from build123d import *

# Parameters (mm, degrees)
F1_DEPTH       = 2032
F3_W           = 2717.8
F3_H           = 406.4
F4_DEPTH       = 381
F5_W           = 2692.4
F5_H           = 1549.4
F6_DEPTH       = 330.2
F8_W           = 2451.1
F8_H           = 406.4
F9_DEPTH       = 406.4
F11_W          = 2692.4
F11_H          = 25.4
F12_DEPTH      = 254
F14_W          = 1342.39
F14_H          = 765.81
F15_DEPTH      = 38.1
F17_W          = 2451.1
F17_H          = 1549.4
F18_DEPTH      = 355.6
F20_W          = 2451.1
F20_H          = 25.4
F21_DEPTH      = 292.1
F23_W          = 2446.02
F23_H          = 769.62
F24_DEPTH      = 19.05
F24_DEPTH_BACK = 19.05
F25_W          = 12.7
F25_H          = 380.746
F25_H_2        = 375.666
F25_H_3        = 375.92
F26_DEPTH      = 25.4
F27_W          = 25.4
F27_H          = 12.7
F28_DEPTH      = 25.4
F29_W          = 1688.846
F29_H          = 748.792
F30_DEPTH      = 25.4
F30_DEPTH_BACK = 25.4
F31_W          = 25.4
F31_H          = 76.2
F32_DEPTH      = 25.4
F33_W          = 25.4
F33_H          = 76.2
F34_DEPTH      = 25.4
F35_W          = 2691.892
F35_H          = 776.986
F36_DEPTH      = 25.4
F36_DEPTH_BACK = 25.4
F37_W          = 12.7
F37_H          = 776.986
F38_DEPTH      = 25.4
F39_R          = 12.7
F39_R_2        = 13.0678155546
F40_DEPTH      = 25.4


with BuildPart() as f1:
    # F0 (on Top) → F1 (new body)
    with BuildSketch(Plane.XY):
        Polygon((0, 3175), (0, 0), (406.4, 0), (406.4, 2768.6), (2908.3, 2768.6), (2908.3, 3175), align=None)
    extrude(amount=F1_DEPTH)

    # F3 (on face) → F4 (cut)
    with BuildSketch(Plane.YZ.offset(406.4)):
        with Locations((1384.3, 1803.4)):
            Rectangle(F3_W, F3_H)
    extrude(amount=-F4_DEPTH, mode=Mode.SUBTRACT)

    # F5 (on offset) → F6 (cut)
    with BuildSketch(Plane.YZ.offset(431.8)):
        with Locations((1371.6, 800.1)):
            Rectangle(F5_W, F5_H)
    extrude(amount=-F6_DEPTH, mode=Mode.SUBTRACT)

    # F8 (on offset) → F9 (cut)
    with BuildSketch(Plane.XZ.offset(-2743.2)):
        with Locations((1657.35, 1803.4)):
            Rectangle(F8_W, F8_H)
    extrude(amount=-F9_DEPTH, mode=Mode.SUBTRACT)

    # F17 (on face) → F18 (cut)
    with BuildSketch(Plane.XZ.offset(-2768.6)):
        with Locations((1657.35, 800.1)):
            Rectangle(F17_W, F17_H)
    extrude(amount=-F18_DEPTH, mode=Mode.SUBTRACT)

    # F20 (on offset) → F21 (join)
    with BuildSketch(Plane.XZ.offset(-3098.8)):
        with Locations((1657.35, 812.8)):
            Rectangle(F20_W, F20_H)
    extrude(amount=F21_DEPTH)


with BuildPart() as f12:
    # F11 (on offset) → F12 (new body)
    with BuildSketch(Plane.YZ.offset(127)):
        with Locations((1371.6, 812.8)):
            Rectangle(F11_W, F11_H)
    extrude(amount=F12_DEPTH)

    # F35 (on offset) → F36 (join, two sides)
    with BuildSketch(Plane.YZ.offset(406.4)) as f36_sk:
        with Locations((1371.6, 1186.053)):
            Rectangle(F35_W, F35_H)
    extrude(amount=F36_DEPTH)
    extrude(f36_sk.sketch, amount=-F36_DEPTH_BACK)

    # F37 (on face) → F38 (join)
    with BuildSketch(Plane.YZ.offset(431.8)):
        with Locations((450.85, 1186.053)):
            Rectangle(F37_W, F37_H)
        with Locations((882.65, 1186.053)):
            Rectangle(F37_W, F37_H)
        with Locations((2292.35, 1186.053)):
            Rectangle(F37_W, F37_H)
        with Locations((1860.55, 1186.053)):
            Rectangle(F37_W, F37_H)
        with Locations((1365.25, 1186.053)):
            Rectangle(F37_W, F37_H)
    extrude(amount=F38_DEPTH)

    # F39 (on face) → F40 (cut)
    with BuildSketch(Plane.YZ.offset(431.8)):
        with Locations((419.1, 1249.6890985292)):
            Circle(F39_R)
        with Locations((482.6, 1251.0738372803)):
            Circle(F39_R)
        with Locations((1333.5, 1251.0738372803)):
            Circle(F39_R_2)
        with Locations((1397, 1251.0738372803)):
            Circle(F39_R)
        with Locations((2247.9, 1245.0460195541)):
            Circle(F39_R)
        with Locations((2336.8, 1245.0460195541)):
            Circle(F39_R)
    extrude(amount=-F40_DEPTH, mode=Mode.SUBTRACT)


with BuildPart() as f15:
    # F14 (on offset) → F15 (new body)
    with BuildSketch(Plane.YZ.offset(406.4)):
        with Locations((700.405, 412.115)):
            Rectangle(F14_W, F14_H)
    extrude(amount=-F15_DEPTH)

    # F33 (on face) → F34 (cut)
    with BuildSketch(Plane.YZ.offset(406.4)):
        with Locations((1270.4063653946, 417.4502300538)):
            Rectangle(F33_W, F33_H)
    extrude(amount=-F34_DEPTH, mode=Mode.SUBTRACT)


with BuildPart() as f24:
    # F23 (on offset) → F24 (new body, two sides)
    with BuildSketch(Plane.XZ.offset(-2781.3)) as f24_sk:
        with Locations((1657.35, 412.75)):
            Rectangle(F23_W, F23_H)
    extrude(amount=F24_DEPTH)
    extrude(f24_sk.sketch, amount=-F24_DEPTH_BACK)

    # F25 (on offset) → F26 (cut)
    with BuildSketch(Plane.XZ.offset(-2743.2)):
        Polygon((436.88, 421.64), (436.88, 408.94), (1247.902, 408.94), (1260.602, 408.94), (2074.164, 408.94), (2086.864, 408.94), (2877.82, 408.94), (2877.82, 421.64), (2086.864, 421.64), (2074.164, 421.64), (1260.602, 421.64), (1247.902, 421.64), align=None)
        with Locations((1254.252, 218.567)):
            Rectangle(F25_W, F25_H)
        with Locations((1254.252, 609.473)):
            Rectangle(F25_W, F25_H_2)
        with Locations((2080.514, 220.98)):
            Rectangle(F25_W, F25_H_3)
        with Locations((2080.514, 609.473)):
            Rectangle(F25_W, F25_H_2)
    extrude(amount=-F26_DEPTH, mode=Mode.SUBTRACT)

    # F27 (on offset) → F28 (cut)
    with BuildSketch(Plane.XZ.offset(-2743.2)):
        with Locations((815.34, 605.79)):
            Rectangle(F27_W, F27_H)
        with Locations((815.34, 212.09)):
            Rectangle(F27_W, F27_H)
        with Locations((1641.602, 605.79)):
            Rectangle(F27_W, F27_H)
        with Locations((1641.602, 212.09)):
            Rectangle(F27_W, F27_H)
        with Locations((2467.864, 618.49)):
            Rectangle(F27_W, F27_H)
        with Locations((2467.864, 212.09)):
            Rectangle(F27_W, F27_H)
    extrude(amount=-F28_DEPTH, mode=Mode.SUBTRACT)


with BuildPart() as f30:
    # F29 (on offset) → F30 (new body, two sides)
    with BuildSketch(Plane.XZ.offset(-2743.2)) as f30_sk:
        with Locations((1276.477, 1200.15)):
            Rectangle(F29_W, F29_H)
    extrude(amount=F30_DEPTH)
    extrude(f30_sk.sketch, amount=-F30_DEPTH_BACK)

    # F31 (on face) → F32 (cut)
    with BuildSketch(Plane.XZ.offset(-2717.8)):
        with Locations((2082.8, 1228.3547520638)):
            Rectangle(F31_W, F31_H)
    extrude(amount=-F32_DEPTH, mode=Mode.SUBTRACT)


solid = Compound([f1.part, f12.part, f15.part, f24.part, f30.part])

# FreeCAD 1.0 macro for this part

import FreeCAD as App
import Part
import Sketcher
from FreeCAD import Vector
Q = App.Units.Quantity


def add_polygon(sketch, points):
    """Adds a closed chain of lines whose ends are joined by coincident constraints."""
    first, n = sketch.GeometryCount, len(points)
    for a, b in zip(points, points[1:] + points[:1]):
        sketch.addGeometry(Part.LineSegment(App.Vector(*a, 0), App.Vector(*b, 0)), False)
    for i in range(n):
        sketch.addConstraint(Sketcher.Constraint("Coincident", first + i, 2, first + (i + 1) % n, 1))

doc = App.newDocument("Part")
body = doc.addObject("PartDesign::Body", "Body")

sketch1 = body.newObject("Sketcher::SketchObject", "Sketch")
sketch1.AttachmentSupport = (doc.getObject("XY_Plane"), [""])
sketch1.MapMode = "FlatFace"
add_polygon(sketch1, [(0, 3175), (0, 0), (406, 0), (406, 2769), (2908, 2769), (2908, 3175)])
sketch1.addConstraint(Sketcher.Constraint("Vertical", 0))
sketch1.addConstraint(Sketcher.Constraint("Horizontal", 1))
sketch1.addConstraint(Sketcher.Constraint("Vertical", 2))
sketch1.addConstraint(Sketcher.Constraint("Horizontal", 3))
sketch1.addConstraint(Sketcher.Constraint("Vertical", 4))
sketch1.addConstraint(Sketcher.Constraint("Horizontal", 5))
sketch1.addConstraint(Sketcher.Constraint("Coincident", 0, 2, -1, 1))
sketch1.addConstraint(Sketcher.Constraint("Equal", 1, 4))
sketch1.addConstraint(Sketcher.Constraint("DistanceX", 1, 1, 1, 2, Q("16 in")))
sketch1.addConstraint(Sketcher.Constraint("DistanceY", 0, 2, 0, 1, Q("125 in")))
sketch1.addConstraint(Sketcher.Constraint("DistanceX", 3, 1, 3, 2, Q("98.5 in")))
pad1 = body.newObject("PartDesign::Pad", "Pad")
pad1.Profile = sketch1
pad1.Length = Q("80 in")

sketch2 = body.newObject("Sketcher::SketchObject", "Sketch001")
sketch2.AttachmentSupport = (doc.getObject("YZ_Plane"), [""])
sketch2.MapMode = "FlatFace"
sketch2.AttachmentOffset = App.Placement(Vector(0, 0, 16 * 25.4), App.Rotation())
add_polygon(sketch2, [(25, 2007), (25, 1600), (2743, 1600), (2743, 2007)])
sketch2.addConstraint(Sketcher.Constraint("Vertical", 0))
sketch2.addConstraint(Sketcher.Constraint("Horizontal", 1))
sketch2.addConstraint(Sketcher.Constraint("Vertical", 2))
sketch2.addConstraint(Sketcher.Constraint("Horizontal", 3))
sketch2.addConstraint(Sketcher.Constraint("DistanceX", 1, 1, 1, 2, Q("107 in")))
sketch2.addConstraint(Sketcher.Constraint("DistanceY", 0, 2, 0, 1, Q("16 in")))
sketch2.addConstraint(Sketcher.Constraint("DistanceX", -1, 1, 0, 2, Q("1 in")))
sketch2.addConstraint(Sketcher.Constraint("DistanceY", -1, 1, 0, 2, Q("63 in")))
pocket1 = body.newObject("PartDesign::Pocket", "Pocket")
pocket1.Profile = sketch2
pocket1.Length = Q("15 in")

sketch3 = body.newObject("Sketcher::SketchObject", "Sketch002")
sketch3.AttachmentSupport = (doc.getObject("YZ_Plane"), [""])
sketch3.MapMode = "FlatFace"
sketch3.AttachmentOffset = App.Placement(Vector(0, 0, 17 * 25.4), App.Rotation())
add_polygon(sketch3, [(25, 1575), (25, 25), (2718, 25), (2718, 1575)])
sketch3.addConstraint(Sketcher.Constraint("Vertical", 0))
sketch3.addConstraint(Sketcher.Constraint("Horizontal", 1))
sketch3.addConstraint(Sketcher.Constraint("Vertical", 2))
sketch3.addConstraint(Sketcher.Constraint("Horizontal", 3))
sketch3.addConstraint(Sketcher.Constraint("DistanceX", 1, 1, 1, 2, Q("106 in")))
sketch3.addConstraint(Sketcher.Constraint("DistanceY", 0, 2, 0, 1, Q("61 in")))
sketch3.addConstraint(Sketcher.Constraint("DistanceX", -1, 1, 0, 2, Q("1 in")))
sketch3.addConstraint(Sketcher.Constraint("DistanceY", -1, 1, 0, 2, Q("1 in")))
pocket2 = body.newObject("PartDesign::Pocket", "Pocket001")
pocket2.Profile = sketch3
pocket2.Length = Q("13 in")

sketch4 = body.newObject("Sketcher::SketchObject", "Sketch003")
sketch4.AttachmentSupport = (doc.getObject("XZ_Plane"), [""])
sketch4.MapMode = "FlatFace"
sketch4.AttachmentOffset = App.Placement(Vector(0, 0, -108 * 25.4), App.Rotation())
add_polygon(sketch4, [(432, 2007), (432, 1600), (2883, 1600), (2883, 2007)])
sketch4.addConstraint(Sketcher.Constraint("Vertical", 0))
sketch4.addConstraint(Sketcher.Constraint("Horizontal", 1))
sketch4.addConstraint(Sketcher.Constraint("Vertical", 2))
sketch4.addConstraint(Sketcher.Constraint("Horizontal", 3))
sketch4.addConstraint(Sketcher.Constraint("DistanceY", 0, 2, 0, 1, Q("16 in")))
sketch4.addConstraint(Sketcher.Constraint("DistanceX", 1, 1, 1, 2, Q("96.5 in")))
sketch4.addConstraint(Sketcher.Constraint("DistanceX", -1, 1, 0, 2, Q("17 in")))
sketch4.addConstraint(Sketcher.Constraint("DistanceY", -1, 1, 0, 2, Q("63 in")))
pocket3 = body.newObject("PartDesign::Pocket", "Pocket002")
pocket3.Profile = sketch4
pocket3.Length = Q("16 in")

sketch5 = body.newObject("Sketcher::SketchObject", "Sketch004")
sketch5.AttachmentSupport = (doc.getObject("XZ_Plane"), [""])
sketch5.MapMode = "FlatFace"
sketch5.AttachmentOffset = App.Placement(Vector(0, 0, -109 * 25.4), App.Rotation())
add_polygon(sketch5, [(432, 1575), (432, 25), (2883, 25), (2883, 1575)])
sketch5.addConstraint(Sketcher.Constraint("Vertical", 0))
sketch5.addConstraint(Sketcher.Constraint("Horizontal", 1))
sketch5.addConstraint(Sketcher.Constraint("Vertical", 2))
sketch5.addConstraint(Sketcher.Constraint("Horizontal", 3))
sketch5.addConstraint(Sketcher.Constraint("DistanceY", 0, 2, 0, 1, Q("61 in")))
sketch5.addConstraint(Sketcher.Constraint("DistanceX", 1, 1, 1, 2, Q("96.5 in")))
sketch5.addConstraint(Sketcher.Constraint("DistanceX", -1, 1, 0, 2, Q("17 in")))
sketch5.addConstraint(Sketcher.Constraint("DistanceY", -1, 1, 0, 2, Q("1 in")))
pocket4 = body.newObject("PartDesign::Pocket", "Pocket003")
pocket4.Profile = sketch5
pocket4.Length = Q("14 in")

sketch6 = body.newObject("Sketcher::SketchObject", "Sketch005")
sketch6.AttachmentSupport = (doc.getObject("XZ_Plane"), [""])
sketch6.MapMode = "FlatFace"
sketch6.AttachmentOffset = App.Placement(Vector(0, 0, -122 * 25.4), App.Rotation())
add_polygon(sketch6, [(432, 826), (432, 800), (2883, 800), (2883, 826)])
sketch6.addConstraint(Sketcher.Constraint("Vertical", 0))
sketch6.addConstraint(Sketcher.Constraint("Horizontal", 1))
sketch6.addConstraint(Sketcher.Constraint("Vertical", 2))
sketch6.addConstraint(Sketcher.Constraint("Horizontal", 3))
sketch6.addConstraint(Sketcher.Constraint("DistanceY", 0, 2, 0, 1, Q("1 in")))
sketch6.addConstraint(Sketcher.Constraint("DistanceX", 1, 1, 1, 2, Q("96.5 in")))
sketch6.addConstraint(Sketcher.Constraint("DistanceX", -1, 1, 0, 2, Q("17 in")))
sketch6.addConstraint(Sketcher.Constraint("DistanceY", -1, 1, 0, 2, Q("31.5 in")))
pad2 = body.newObject("PartDesign::Pad", "Pad001")
pad2.Profile = sketch6
pad2.Length = Q("11.5 in")
body2 = doc.addObject("PartDesign::Body", "Body001")

sketch7 = body2.newObject("Sketcher::SketchObject", "Sketch006")
sketch7.AttachmentSupport = (doc.getObject("YZ_Plane001"), [""])
sketch7.MapMode = "FlatFace"
sketch7.AttachmentOffset = App.Placement(Vector(0, 0, 5 * 25.4), App.Rotation())
add_polygon(sketch7, [(25, 826), (25, 800), (2718, 800), (2718, 826)])
sketch7.addConstraint(Sketcher.Constraint("Vertical", 0))
sketch7.addConstraint(Sketcher.Constraint("Horizontal", 1))
sketch7.addConstraint(Sketcher.Constraint("Vertical", 2))
sketch7.addConstraint(Sketcher.Constraint("Horizontal", 3))
sketch7.addConstraint(Sketcher.Constraint("DistanceX", 1, 1, 1, 2, Q("106 in")))
sketch7.addConstraint(Sketcher.Constraint("DistanceY", 0, 2, 0, 1, Q("1 in")))
sketch7.addConstraint(Sketcher.Constraint("DistanceX", -1, 1, 0, 2, Q("1 in")))
sketch7.addConstraint(Sketcher.Constraint("DistanceY", -1, 1, 0, 2, Q("31.5 in")))
pad3 = body2.newObject("PartDesign::Pad", "Pad002")
pad3.Profile = sketch7
pad3.Length = Q("10 in")

sketch8 = body2.newObject("Sketcher::SketchObject", "Sketch007")
sketch8.AttachmentSupport = (doc.getObject("YZ_Plane001"), [""])
sketch8.MapMode = "FlatFace"
sketch8.AttachmentOffset = App.Placement(Vector(0, 0, 16 * 25.4), App.Rotation())
add_polygon(sketch8, [(26, 1575), (26, 798), (2718, 798), (2718, 1575)])
sketch8.addConstraint(Sketcher.Constraint("Vertical", 0))
sketch8.addConstraint(Sketcher.Constraint("Horizontal", 1))
sketch8.addConstraint(Sketcher.Constraint("Vertical", 2))
sketch8.addConstraint(Sketcher.Constraint("Horizontal", 3))
sketch8.addConstraint(Sketcher.Constraint("DistanceX", 1, 1, 1, 2, Q("105.98 in")))
sketch8.addConstraint(Sketcher.Constraint("DistanceY", 0, 2, 0, 1, Q("30.59 in")))
sketch8.addConstraint(Sketcher.Constraint("DistanceY", -1, 1, 0, 2, Q("31.4 in")))
sketch8.addConstraint(Sketcher.Constraint("DistanceX", -1, 1, 0, 2, Q("1.01 in")))
pad4 = body2.newObject("PartDesign::Pad", "Pad003")
pad4.Profile = sketch8
pad4.Type = "TwoLengths"
pad4.Length = Q("1 in")
pad4.Length2 = Q("1 in")

sketch9 = body2.newObject("Sketcher::SketchObject", "Sketch008")
sketch9.AttachmentSupport = (doc.getObject("YZ_Plane001"), [""])
sketch9.MapMode = "FlatFace"
sketch9.AttachmentOffset = App.Placement(Vector(0, 0, 17 * 25.4), App.Rotation())
add_polygon(sketch9, [(444, 1575), (444, 798), (457, 798), (457, 1575)])
add_polygon(sketch9, [(876, 1575), (876, 798), (889, 798), (889, 1575)])
add_polygon(sketch9, [(2286, 1575), (2286, 798), (2299, 798), (2299, 1575)])
add_polygon(sketch9, [(1854, 1575), (1854, 798), (1867, 798), (1867, 1575)])
add_polygon(sketch9, [(1359, 1575), (1359, 798), (1372, 798), (1372, 1575)])
sketch9.addConstraint(Sketcher.Constraint("Vertical", 0))
sketch9.addConstraint(Sketcher.Constraint("Horizontal", 1))
sketch9.addConstraint(Sketcher.Constraint("Vertical", 2))
sketch9.addConstraint(Sketcher.Constraint("Horizontal", 3))
sketch9.addConstraint(Sketcher.Constraint("Vertical", 4))
sketch9.addConstraint(Sketcher.Constraint("Horizontal", 5))
sketch9.addConstraint(Sketcher.Constraint("Vertical", 6))
sketch9.addConstraint(Sketcher.Constraint("Horizontal", 7))
sketch9.addConstraint(Sketcher.Constraint("Vertical", 8))
sketch9.addConstraint(Sketcher.Constraint("Horizontal", 9))
sketch9.addConstraint(Sketcher.Constraint("Vertical", 10))
sketch9.addConstraint(Sketcher.Constraint("Horizontal", 11))
sketch9.addConstraint(Sketcher.Constraint("Vertical", 12))
sketch9.addConstraint(Sketcher.Constraint("Horizontal", 13))
sketch9.addConstraint(Sketcher.Constraint("Vertical", 14))
sketch9.addConstraint(Sketcher.Constraint("Horizontal", 15))
sketch9.addConstraint(Sketcher.Constraint("Vertical", 16))
sketch9.addConstraint(Sketcher.Constraint("Horizontal", 17))
sketch9.addConstraint(Sketcher.Constraint("Vertical", 18))
sketch9.addConstraint(Sketcher.Constraint("Horizontal", 19))
sketch9.addConstraint(Sketcher.Constraint("Horizontal", 1, 2, 4, 2))
sketch9.addConstraint(Sketcher.Constraint("Horizontal", 3, 2, 6, 2))
sketch9.addConstraint(Sketcher.Constraint("Horizontal", 5, 2, 8, 2))
sketch9.addConstraint(Sketcher.Constraint("Horizontal", 7, 2, 10, 2))
sketch9.addConstraint(Sketcher.Constraint("Horizontal", 9, 2, 12, 2))
sketch9.addConstraint(Sketcher.Constraint("Horizontal", 11, 2, 14, 2))
sketch9.addConstraint(Sketcher.Constraint("Horizontal", 13, 2, 16, 2))
sketch9.addConstraint(Sketcher.Constraint("Horizontal", 15, 2, 18, 2))
sketch9.addConstraint(Sketcher.Constraint("Equal", 3, 5))
sketch9.addConstraint(Sketcher.Constraint("Equal", 7, 9))
sketch9.addConstraint(Sketcher.Constraint("Equal", 11, 13))
sketch9.addConstraint(Sketcher.Constraint("Equal", 15, 17))
sketch9.addConstraint(Sketcher.Constraint("DistanceX", 1, 1, 1, 2, Q("0.5 in")))
sketch9.addConstraint(Sketcher.Constraint("DistanceX", -1, 1, 1, 2, Q("18 in")))
sketch9.addConstraint(Sketcher.Constraint("DistanceX", -1, 1, 5, 2, Q("35 in")))
sketch9.addConstraint(Sketcher.Constraint("DistanceX", -1, 1, 8, 2, Q("90 in")))
sketch9.addConstraint(Sketcher.Constraint("DistanceX", -1, 1, 12, 2, Q("73 in")))
sketch9.addConstraint(Sketcher.Constraint("DistanceX", -1, 1, 17, 2, Q("54 in")))
sketch9.addConstraint(Sketcher.Constraint("DistanceY", 0, 2, 0, 1, Q("30.59 in")))
sketch9.addConstraint(Sketcher.Constraint("DistanceY", -1, 1, 0, 2, Q("31.4 in")))
pad5 = body2.newObject("PartDesign::Pad", "Pad004")
pad5.Profile = sketch9
pad5.Length = Q("1 in")

sketch10 = body2.newObject("Sketcher::SketchObject", "Sketch009")
sketch10.AttachmentSupport = (doc.getObject("YZ_Plane001"), [""])
sketch10.MapMode = "FlatFace"
sketch10.AttachmentOffset = App.Placement(Vector(0, 0, 17 * 25.4), App.Rotation())
sketch10.addGeometry(Part.Circle(Vector(419, 1250, 0), Vector(0, 0, 1), 13), False)
sketch10.addGeometry(Part.Circle(Vector(483, 1251, 0), Vector(0, 0, 1), 13), False)
sketch10.addGeometry(Part.Circle(Vector(1334, 1251, 0), Vector(0, 0, 1), 13), False)
sketch10.addGeometry(Part.Circle(Vector(1397, 1251, 0), Vector(0, 0, 1), 13), False)
sketch10.addGeometry(Part.Circle(Vector(2248, 1245, 0), Vector(0, 0, 1), 13), False)
sketch10.addGeometry(Part.Circle(Vector(2337, 1245, 0), Vector(0, 0, 1), 13), False)
sketch10.addConstraint(Sketcher.Constraint("Equal", 0, 1))
sketch10.addConstraint(Sketcher.Constraint("Equal", 1, 3))
sketch10.addConstraint(Sketcher.Constraint("Equal", 3, 4))
sketch10.addConstraint(Sketcher.Constraint("Equal", 4, 5))
sketch10.addConstraint(Sketcher.Constraint("Horizontal", 1, 3, 2, 3))
sketch10.addConstraint(Sketcher.Constraint("Horizontal", 2, 3, 3, 3))
sketch10.addConstraint(Sketcher.Constraint("Horizontal", 4, 3, 5, 3))
sketch10.addConstraint(Sketcher.Constraint("Diameter", 0, Q("1 in")))
sketch10.addConstraint(Sketcher.Constraint("DistanceX", -1, 1, 1, 3, Q("19 in")))
sketch10.addConstraint(Sketcher.Constraint("DistanceX", -1, 1, 3, 3, Q("55 in")))
sketch10.addConstraint(Sketcher.Constraint("DistanceX", -1, 1, 5, 3, Q("92 in")))
sketch10.addConstraint(Sketcher.Constraint("DistanceX", 0, 3, 2, 3, Q("36 in")))
sketch10.addConstraint(Sketcher.Constraint("DistanceX", 2, 3, 4, 3, Q("36 in")))
sketch10.addConstraint(Sketcher.Constraint("DistanceX", -1, 1, 0, 3, Q("16.5 in")))
sketch10.addConstraint(Sketcher.Constraint("Diameter", 2, Q("26.135631 mm")))
sketch10.addConstraint(Sketcher.Constraint("DistanceY", -1, 1, 0, 3, Q("1249.689099 mm")))
sketch10.addConstraint(Sketcher.Constraint("DistanceY", -1, 1, 4, 3, Q("1245.04602 mm")))
sketch10.addConstraint(Sketcher.Constraint("DistanceY", 0, 3, 1, 3, Q("1.384739 mm")))
pocket5 = body2.newObject("PartDesign::Pocket", "Pocket004")
pocket5.Profile = sketch10
pocket5.Length = Q("1 in")
body3 = doc.addObject("PartDesign::Body", "Body002")

sketch11 = body3.newObject("Sketcher::SketchObject", "Sketch010")
sketch11.AttachmentSupport = (doc.getObject("YZ_Plane002"), [""])
sketch11.MapMode = "FlatFace"
sketch11.AttachmentOffset = App.Placement(Vector(0, 0, 16 * 25.4), App.Rotation())
add_polygon(sketch11, [(29, 795), (29, 29), (1372, 29), (1372, 795)])
sketch11.addConstraint(Sketcher.Constraint("Vertical", 0))
sketch11.addConstraint(Sketcher.Constraint("Horizontal", 1))
sketch11.addConstraint(Sketcher.Constraint("Vertical", 2))
sketch11.addConstraint(Sketcher.Constraint("Horizontal", 3))
sketch11.addConstraint(Sketcher.Constraint("DistanceX", -1, 1, 1, 2, Q("54 in")))
sketch11.addConstraint(Sketcher.Constraint("DistanceX", 1, 1, 1, 2, Q("52.85 in")))
sketch11.addConstraint(Sketcher.Constraint("DistanceY", 0, 2, 0, 1, Q("30.15 in")))
sketch11.addConstraint(Sketcher.Constraint("DistanceY", -1, 1, 2, 2, Q("31.3 in")))
pad6 = body3.newObject("PartDesign::Pad", "Pad005")
pad6.Profile = sketch11
pad6.Length = Q("1.5 in")
pad6.Reversed = True

sketch12 = body3.newObject("Sketcher::SketchObject", "Sketch011")
sketch12.AttachmentSupport = (doc.getObject("YZ_Plane002"), [""])
sketch12.MapMode = "FlatFace"
sketch12.AttachmentOffset = App.Placement(Vector(0, 0, 16 * 25.4), App.Rotation())
add_polygon(sketch12, [(1258, 456), (1258, 379), (1283, 379), (1283, 456)])
sketch12.addConstraint(Sketcher.Constraint("Vertical", 0))
sketch12.addConstraint(Sketcher.Constraint("Horizontal", 1))
sketch12.addConstraint(Sketcher.Constraint("Vertical", 2))
sketch12.addConstraint(Sketcher.Constraint("Horizontal", 3))
sketch12.addConstraint(Sketcher.Constraint("DistanceX", 1, 1, 1, 2, Q("1 in")))
sketch12.addConstraint(Sketcher.Constraint("DistanceY", 0, 2, 0, 1, Q("3 in")))
sketch12.addConstraint(Sketcher.Constraint("DistanceY", -1, 1, 0, 2, Q("379.35023 mm")))
sketch12.addConstraint(Sketcher.Constraint("DistanceX", -1, 1, 0, 2, Q("1257.706365 mm")))
pocket6 = body3.newObject("PartDesign::Pocket", "Pocket005")
pocket6.Profile = sketch12
pocket6.Length = Q("1 in")
body4 = doc.addObject("PartDesign::Body", "Body003")

sketch13 = body4.newObject("Sketcher::SketchObject", "Sketch012")
sketch13.AttachmentSupport = (doc.getObject("XZ_Plane003"), [""])
sketch13.MapMode = "FlatFace"
sketch13.AttachmentOffset = App.Placement(Vector(0, 0, -109.5 * 25.4), App.Rotation())
add_polygon(sketch13, [(434, 798), (434, 28), (2880, 28), (2880, 798)])
sketch13.addConstraint(Sketcher.Constraint("Vertical", 0))
sketch13.addConstraint(Sketcher.Constraint("Horizontal", 1))
sketch13.addConstraint(Sketcher.Constraint("Vertical", 2))
sketch13.addConstraint(Sketcher.Constraint("Horizontal", 3))
sketch13.addConstraint(Sketcher.Constraint("DistanceX", 1, 1, 1, 2, Q("96.3 in")))
sketch13.addConstraint(Sketcher.Constraint("DistanceY", 0, 2, 0, 1, Q("30.3 in")))
sketch13.addConstraint(Sketcher.Constraint("DistanceX", -1, 1, 0, 2, Q("17.1 in")))
sketch13.addConstraint(Sketcher.Constraint("DistanceY", -1, 1, 0, 2, Q("1.1 in")))
pad7 = body4.newObject("PartDesign::Pad", "Pad006")
pad7.Profile = sketch13
pad7.Type = "TwoLengths"
pad7.Length = Q("0.75 in")
pad7.Length2 = Q("0.75 in")

sketch14 = body4.newObject("Sketcher::SketchObject", "Sketch013")
sketch14.AttachmentSupport = (doc.getObject("XZ_Plane003"), [""])
sketch14.MapMode = "FlatFace"
sketch14.AttachmentOffset = App.Placement(Vector(0, 0, -108 * 25.4), App.Rotation())
add_polygon(sketch14, [(437, 422), (437, 409), (1248, 409), (1248, 28), (1261, 28), (1261, 409), (2074, 409), (2074, 33), (2087, 33), (2087, 409), (2878, 409), (2878, 422), (2087, 422), (2087, 797), (2074, 797), (2074, 422), (1261, 422), (1261, 797), (1248, 797), (1248, 422)])
sketch14.addConstraint(Sketcher.Constraint("Vertical", 0))
sketch14.addConstraint(Sketcher.Constraint("Horizontal", 1))
sketch14.addConstraint(Sketcher.Constraint("Vertical", 2))
sketch14.addConstraint(Sketcher.Constraint("Horizontal", 3))
sketch14.addConstraint(Sketcher.Constraint("Vertical", 4))
sketch14.addConstraint(Sketcher.Constraint("Horizontal", 5))
sketch14.addConstraint(Sketcher.Constraint("Vertical", 6))
sketch14.addConstraint(Sketcher.Constraint("Horizontal", 7))
sketch14.addConstraint(Sketcher.Constraint("Vertical", 8))
sketch14.addConstraint(Sketcher.Constraint("Horizontal", 9))
sketch14.addConstraint(Sketcher.Constraint("Vertical", 10))
sketch14.addConstraint(Sketcher.Constraint("Horizontal", 11))
sketch14.addConstraint(Sketcher.Constraint("Vertical", 12))
sketch14.addConstraint(Sketcher.Constraint("Horizontal", 13))
sketch14.addConstraint(Sketcher.Constraint("Vertical", 14))
sketch14.addConstraint(Sketcher.Constraint("Horizontal", 15))
sketch14.addConstraint(Sketcher.Constraint("Vertical", 16))
sketch14.addConstraint(Sketcher.Constraint("Horizontal", 17))
sketch14.addConstraint(Sketcher.Constraint("Vertical", 18))
sketch14.addConstraint(Sketcher.Constraint("Horizontal", 19))
sketch14.addConstraint(Sketcher.Constraint("Horizontal", 1, 2, 4, 2))
sketch14.addConstraint(Sketcher.Constraint("Horizontal", 5, 2, 8, 2))
sketch14.addConstraint(Sketcher.Constraint("Horizontal", 11, 2, 14, 2))
sketch14.addConstraint(Sketcher.Constraint("Horizontal", 13, 2, 16, 2))
sketch14.addConstraint(Sketcher.Constraint("Horizontal", 15, 2, 18, 2))
sketch14.addConstraint(Sketcher.Constraint("Vertical", 8, 2, 11, 2))
sketch14.addConstraint(Sketcher.Constraint("Vertical", 6, 2, 13, 2))
sketch14.addConstraint(Sketcher.Constraint("Vertical", 4, 2, 15, 2))
sketch14.addConstraint(Sketcher.Constraint("Vertical", 2, 2, 17, 2))
sketch14.addConstraint(Sketcher.Constraint("Equal", 3, 7))
sketch14.addConstraint(Sketcher.Constraint("Equal", 17, 0))
sketch14.addConstraint(Sketcher.Constraint("DistanceX", 3, 1, 3, 2, Q("0.5 in")))
sketch14.addConstraint(Sketcher.Constraint("DistanceY", 6, 2, 6, 1, Q("14.8 in")))
sketch14.addConstraint(Sketcher.Constraint("DistanceX", 1, 1, 1, 2, Q("31.93 in")))
sketch14.addConstraint(Sketcher.Constraint("DistanceX", 5, 1, 5, 2, Q("32.03 in")))
sketch14.addConstraint(Sketcher.Constraint("DistanceX", 9, 1, 9, 2, Q("31.14 in")))
sketch14.addConstraint(Sketcher.Constraint("DistanceY", 2, 2, 2, 1, Q("14.99 in")))
sketch14.addConstraint(Sketcher.Constraint("DistanceY", 12, 1, 12, 2, Q("14.79 in")))
sketch14.addConstraint(Sketcher.Constraint("DistanceX", -1, 1, 0, 2, Q("17.2 in")))
sketch14.addConstraint(Sketcher.Constraint("DistanceY", -1, 1, 0, 2, Q("16.1 in")))
pocket7 = body4.newObject("PartDesign::Pocket", "Pocket006")
pocket7.Profile = sketch14
pocket7.Length = Q("1 in")

sketch15 = body4.newObject("Sketcher::SketchObject", "Sketch014")
sketch15.AttachmentSupport = (doc.getObject("XZ_Plane003"), [""])
sketch15.MapMode = "FlatFace"
sketch15.AttachmentOffset = App.Placement(Vector(0, 0, -108 * 25.4), App.Rotation())
add_polygon(sketch15, [(803, 612), (803, 599), (828, 599), (828, 612)])
add_polygon(sketch15, [(803, 218), (803, 206), (828, 206), (828, 218)])
add_polygon(sketch15, [(1629, 612), (1629, 599), (1654, 599), (1654, 612)])
add_polygon(sketch15, [(1629, 218), (1629, 206), (1654, 206), (1654, 218)])
add_polygon(sketch15, [(2455, 625), (2455, 612), (2481, 612), (2481, 625)])
add_polygon(sketch15, [(2455, 218), (2455, 206), (2481, 206), (2481, 218)])
sketch15.addConstraint(Sketcher.Constraint("Vertical", 0))
sketch15.addConstraint(Sketcher.Constraint("Horizontal", 1))
sketch15.addConstraint(Sketcher.Constraint("Vertical", 2))
sketch15.addConstraint(Sketcher.Constraint("Horizontal", 3))
sketch15.addConstraint(Sketcher.Constraint("Vertical", 4))
sketch15.addConstraint(Sketcher.Constraint("Horizontal", 5))
sketch15.addConstraint(Sketcher.Constraint("Vertical", 6))
sketch15.addConstraint(Sketcher.Constraint("Horizontal", 7))
sketch15.addConstraint(Sketcher.Constraint("Vertical", 8))
sketch15.addConstraint(Sketcher.Constraint("Horizontal", 9))
sketch15.addConstraint(Sketcher.Constraint("Vertical", 10))
sketch15.addConstraint(Sketcher.Constraint("Horizontal", 11))
sketch15.addConstraint(Sketcher.Constraint("Vertical", 12))
sketch15.addConstraint(Sketcher.Constraint("Horizontal", 13))
sketch15.addConstraint(Sketcher.Constraint("Vertical", 14))
sketch15.addConstraint(Sketcher.Constraint("Horizontal", 15))
sketch15.addConstraint(Sketcher.Constraint("Vertical", 16))
sketch15.addConstraint(Sketcher.Constraint("Horizontal", 17))
sketch15.addConstraint(Sketcher.Constraint("Vertical", 18))
sketch15.addConstraint(Sketcher.Constraint("Horizontal", 19))
sketch15.addConstraint(Sketcher.Constraint("Vertical", 20))
sketch15.addConstraint(Sketcher.Constraint("Horizontal", 21))
sketch15.addConstraint(Sketcher.Constraint("Vertical", 22))
sketch15.addConstraint(Sketcher.Constraint("Horizontal", 23))
sketch15.addConstraint(Sketcher.Constraint("Horizontal", 1, 2, 8, 2))
sketch15.addConstraint(Sketcher.Constraint("Horizontal", 3, 2, 10, 2))
sketch15.addConstraint(Sketcher.Constraint("Horizontal", 5, 2, 12, 2))
sketch15.addConstraint(Sketcher.Constraint("Horizontal", 7, 2, 14, 2))
sketch15.addConstraint(Sketcher.Constraint("Horizontal", 11, 2, 16, 2))
sketch15.addConstraint(Sketcher.Constraint("Horizontal", 13, 2, 20, 2))
sketch15.addConstraint(Sketcher.Constraint("Horizontal", 15, 2, 22, 2))
sketch15.addConstraint(Sketcher.Constraint("Vertical", 3, 2, 4, 2))
sketch15.addConstraint(Sketcher.Constraint("Vertical", 2, 2, 5, 2))
sketch15.addConstraint(Sketcher.Constraint("Vertical", 11, 2, 12, 2))
sketch15.addConstraint(Sketcher.Constraint("Vertical", 10, 2, 13, 2))
sketch15.addConstraint(Sketcher.Constraint("Vertical", 19, 2, 20, 2))
sketch15.addConstraint(Sketcher.Constraint("Vertical", 18, 2, 21, 2))
sketch15.addConstraint(Sketcher.Constraint("Equal", 7, 9))
sketch15.addConstraint(Sketcher.Constraint("Equal", 15, 17))
sketch15.addConstraint(Sketcher.Constraint("Equal", 2, 4))
sketch15.addConstraint(Sketcher.Constraint("Equal", 14, 16))
sketch15.addConstraint(Sketcher.Constraint("DistanceX", 1, 1, 1, 2, Q("1 in")))
sketch15.addConstraint(Sketcher.Constraint("DistanceY", 0, 2, 0, 1, Q("0.5 in")))
sketch15.addConstraint(Sketcher.Constraint("DistanceY", 4, 2, 3, 2, Q("16 in")))
sketch15.addConstraint(Sketcher.Constraint("DistanceX", -1, 1, 0, 2, Q("31.6 in")))
sketch15.addConstraint(Sketcher.Constraint("DistanceY", -1, 1, 0, 2, Q("23.6 in")))
sketch15.addConstraint(Sketcher.Constraint("DistanceX", -1, 1, 8, 2, Q("64.13 in")))
sketch15.addConstraint(Sketcher.Constraint("DistanceX", -1, 1, 16, 2, Q("96.66 in")))
pocket8 = body4.newObject("PartDesign::Pocket", "Pocket007")
pocket8.Profile = sketch15
pocket8.Length = Q("1 in")
body5 = doc.addObject("PartDesign::Body", "Body004")

sketch16 = body5.newObject("Sketcher::SketchObject", "Sketch015")
sketch16.AttachmentSupport = (doc.getObject("XZ_Plane004"), [""])
sketch16.MapMode = "FlatFace"
sketch16.AttachmentOffset = App.Placement(Vector(0, 0, -108 * 25.4), App.Rotation())
add_polygon(sketch16, [(432, 1575), (432, 826), (2121, 826), (2121, 1575)])
sketch16.addConstraint(Sketcher.Constraint("Vertical", 0))
sketch16.addConstraint(Sketcher.Constraint("Horizontal", 1))
sketch16.addConstraint(Sketcher.Constraint("Vertical", 2))
sketch16.addConstraint(Sketcher.Constraint("Horizontal", 3))
sketch16.addConstraint(Sketcher.Constraint("DistanceX", 1, 1, 1, 2, Q("66.49 in")))
sketch16.addConstraint(Sketcher.Constraint("DistanceY", 0, 2, 0, 1, Q("29.48 in")))
sketch16.addConstraint(Sketcher.Constraint("DistanceX", -1, 1, 1, 2, Q("83.5 in")))
sketch16.addConstraint(Sketcher.Constraint("DistanceY", -1, 1, 0, 2, Q("32.51 in")))
pad8 = body5.newObject("PartDesign::Pad", "Pad007")
pad8.Profile = sketch16
pad8.Type = "TwoLengths"
pad8.Length = Q("1 in")
pad8.Length2 = Q("1 in")

sketch17 = body5.newObject("Sketcher::SketchObject", "Sketch016")
sketch17.AttachmentSupport = (doc.getObject("XZ_Plane004"), [""])
sketch17.MapMode = "FlatFace"
sketch17.AttachmentOffset = App.Placement(Vector(0, 0, -107 * 25.4), App.Rotation())
add_polygon(sketch17, [(2070, 1266), (2070, 1190), (2096, 1190), (2096, 1266)])
sketch17.addConstraint(Sketcher.Constraint("Vertical", 0))
sketch17.addConstraint(Sketcher.Constraint("Horizontal", 1))
sketch17.addConstraint(Sketcher.Constraint("Vertical", 2))
sketch17.addConstraint(Sketcher.Constraint("Horizontal", 3))
sketch17.addConstraint(Sketcher.Constraint("DistanceX", 1, 1, 1, 2, Q("1 in")))
sketch17.addConstraint(Sketcher.Constraint("DistanceY", 0, 2, 0, 1, Q("3 in")))
sketch17.addConstraint(Sketcher.Constraint("DistanceX", -1, 1, 0, 2, Q("81.5 in")))
sketch17.addConstraint(Sketcher.Constraint("DistanceY", -1, 1, 0, 2, Q("1190.254752 mm")))
pocket9 = body5.newObject("PartDesign::Pocket", "Pocket008")
pocket9.Profile = sketch17
pocket9.Length = Q("1 in")

doc.recompute()
